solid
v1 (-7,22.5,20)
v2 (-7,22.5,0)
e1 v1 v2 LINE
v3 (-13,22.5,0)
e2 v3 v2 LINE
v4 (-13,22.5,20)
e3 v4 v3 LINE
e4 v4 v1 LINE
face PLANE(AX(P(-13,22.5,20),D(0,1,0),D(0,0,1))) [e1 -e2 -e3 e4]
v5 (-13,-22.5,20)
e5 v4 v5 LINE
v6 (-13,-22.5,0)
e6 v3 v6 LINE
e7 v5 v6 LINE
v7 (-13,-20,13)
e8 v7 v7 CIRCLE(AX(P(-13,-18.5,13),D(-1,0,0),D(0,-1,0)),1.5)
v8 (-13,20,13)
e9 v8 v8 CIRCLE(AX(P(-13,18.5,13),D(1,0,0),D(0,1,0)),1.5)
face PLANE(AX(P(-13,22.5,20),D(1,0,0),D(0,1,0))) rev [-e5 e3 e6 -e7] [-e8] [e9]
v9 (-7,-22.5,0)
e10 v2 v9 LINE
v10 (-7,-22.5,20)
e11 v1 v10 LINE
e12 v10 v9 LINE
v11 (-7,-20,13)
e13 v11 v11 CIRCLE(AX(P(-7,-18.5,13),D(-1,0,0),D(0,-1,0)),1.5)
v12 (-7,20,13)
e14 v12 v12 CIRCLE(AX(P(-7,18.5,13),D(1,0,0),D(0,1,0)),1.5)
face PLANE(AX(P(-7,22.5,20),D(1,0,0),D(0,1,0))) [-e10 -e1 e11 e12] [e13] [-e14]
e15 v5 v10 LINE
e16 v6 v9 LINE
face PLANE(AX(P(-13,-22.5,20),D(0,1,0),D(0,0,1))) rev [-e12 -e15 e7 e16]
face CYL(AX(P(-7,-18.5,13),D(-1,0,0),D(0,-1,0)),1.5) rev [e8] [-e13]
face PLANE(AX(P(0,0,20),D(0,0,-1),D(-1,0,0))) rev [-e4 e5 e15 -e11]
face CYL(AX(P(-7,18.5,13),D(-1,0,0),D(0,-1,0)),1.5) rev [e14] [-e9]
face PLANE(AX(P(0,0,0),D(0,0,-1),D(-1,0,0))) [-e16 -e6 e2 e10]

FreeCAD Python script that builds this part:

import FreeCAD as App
import Part
import Sketcher

V = App.Vector


def add_polygon(sketch, points):
    """Adds a closed chain of lines whose ends are joined by coincident constraints."""
    first, n = sketch.GeometryCount, len(points)
    for a, b in zip(points, points[1:] + points[:1]):
        sketch.addGeometry(Part.LineSegment(App.Vector(*a, 0), App.Vector(*b, 0)), False)
    for i in range(n):
        sketch.addConstraint(Sketcher.Constraint("Coincident", first + i, 2, first + (i + 1) % n, 1))

doc = App.newDocument("Part")
body = doc.addObject("PartDesign::Body", "Body")

# Sketch on XY plane
sketch1 = body.newObject("Sketcher::SketchObject", "Sketch")
sketch1.AttachmentSupport = (doc.getObject("XY_Plane"), [""])
sketch1.MapMode = "FlatFace"
add_polygon(sketch1, [(-13, 22), (-13, -22), (-7, -22), (-7, 22)])  # lines 0-3
sketch1.addConstraint([
    Sketcher.Constraint("Vertical", 0),
    Sketcher.Constraint("Horizontal", 1),
    Sketcher.Constraint("Vertical", 2),
    Sketcher.Constraint("Horizontal", 3),
    Sketcher.Constraint("DistanceX", 1, 1, 1, 2, 6.0),
    Sketcher.Constraint("DistanceY", 0, 2, 0, 1, 45.0),
    Sketcher.Constraint("DistanceX", 0, 2, -1, 1, 13.0),
    Sketcher.Constraint("DistanceY", 0, 2, -1, 1, 22.5),
])
pad1 = body.newObject("PartDesign::Pad", "Pad")
pad1.Profile = sketch1
pad1.Length = 20

# Sketch on YZ plane
sketch2 = body.newObject("Sketcher::SketchObject", "Sketch001")
sketch2.AttachmentSupport = (doc.getObject("YZ_Plane"), [""])
sketch2.MapMode = "FlatFace"
sketch2.AttachmentOffset = App.Placement(V(0, 0, -13), App.Rotation())
sketch2.addGeometry([
    Part.Circle(V(-18.5, 13, 0), V(0, 0, 1), 1.5),
    Part.Circle(V(18.5, 13, 0), V(0, 0, 1), 1.5),
], False)
sketch2.addConstraint([
    Sketcher.Constraint("Equal", 0, 1),
    Sketcher.Constraint("Symmetric", 0, 3, 1, 3, -2),
    Sketcher.Constraint("Diameter", 0, 3.0),
    Sketcher.Constraint("DistanceY", -1, 1, 0, 3, 13.0),
    Sketcher.Constraint("DistanceX", 0, 3, 1, 3, 37.0),
])
pocket1 = body.newObject("PartDesign::Pocket", "Pocket")
pocket1.Profile = sketch2
pocket1.Type = "ThroughAll"
pocket1.Reversed = True

doc.recompute()
